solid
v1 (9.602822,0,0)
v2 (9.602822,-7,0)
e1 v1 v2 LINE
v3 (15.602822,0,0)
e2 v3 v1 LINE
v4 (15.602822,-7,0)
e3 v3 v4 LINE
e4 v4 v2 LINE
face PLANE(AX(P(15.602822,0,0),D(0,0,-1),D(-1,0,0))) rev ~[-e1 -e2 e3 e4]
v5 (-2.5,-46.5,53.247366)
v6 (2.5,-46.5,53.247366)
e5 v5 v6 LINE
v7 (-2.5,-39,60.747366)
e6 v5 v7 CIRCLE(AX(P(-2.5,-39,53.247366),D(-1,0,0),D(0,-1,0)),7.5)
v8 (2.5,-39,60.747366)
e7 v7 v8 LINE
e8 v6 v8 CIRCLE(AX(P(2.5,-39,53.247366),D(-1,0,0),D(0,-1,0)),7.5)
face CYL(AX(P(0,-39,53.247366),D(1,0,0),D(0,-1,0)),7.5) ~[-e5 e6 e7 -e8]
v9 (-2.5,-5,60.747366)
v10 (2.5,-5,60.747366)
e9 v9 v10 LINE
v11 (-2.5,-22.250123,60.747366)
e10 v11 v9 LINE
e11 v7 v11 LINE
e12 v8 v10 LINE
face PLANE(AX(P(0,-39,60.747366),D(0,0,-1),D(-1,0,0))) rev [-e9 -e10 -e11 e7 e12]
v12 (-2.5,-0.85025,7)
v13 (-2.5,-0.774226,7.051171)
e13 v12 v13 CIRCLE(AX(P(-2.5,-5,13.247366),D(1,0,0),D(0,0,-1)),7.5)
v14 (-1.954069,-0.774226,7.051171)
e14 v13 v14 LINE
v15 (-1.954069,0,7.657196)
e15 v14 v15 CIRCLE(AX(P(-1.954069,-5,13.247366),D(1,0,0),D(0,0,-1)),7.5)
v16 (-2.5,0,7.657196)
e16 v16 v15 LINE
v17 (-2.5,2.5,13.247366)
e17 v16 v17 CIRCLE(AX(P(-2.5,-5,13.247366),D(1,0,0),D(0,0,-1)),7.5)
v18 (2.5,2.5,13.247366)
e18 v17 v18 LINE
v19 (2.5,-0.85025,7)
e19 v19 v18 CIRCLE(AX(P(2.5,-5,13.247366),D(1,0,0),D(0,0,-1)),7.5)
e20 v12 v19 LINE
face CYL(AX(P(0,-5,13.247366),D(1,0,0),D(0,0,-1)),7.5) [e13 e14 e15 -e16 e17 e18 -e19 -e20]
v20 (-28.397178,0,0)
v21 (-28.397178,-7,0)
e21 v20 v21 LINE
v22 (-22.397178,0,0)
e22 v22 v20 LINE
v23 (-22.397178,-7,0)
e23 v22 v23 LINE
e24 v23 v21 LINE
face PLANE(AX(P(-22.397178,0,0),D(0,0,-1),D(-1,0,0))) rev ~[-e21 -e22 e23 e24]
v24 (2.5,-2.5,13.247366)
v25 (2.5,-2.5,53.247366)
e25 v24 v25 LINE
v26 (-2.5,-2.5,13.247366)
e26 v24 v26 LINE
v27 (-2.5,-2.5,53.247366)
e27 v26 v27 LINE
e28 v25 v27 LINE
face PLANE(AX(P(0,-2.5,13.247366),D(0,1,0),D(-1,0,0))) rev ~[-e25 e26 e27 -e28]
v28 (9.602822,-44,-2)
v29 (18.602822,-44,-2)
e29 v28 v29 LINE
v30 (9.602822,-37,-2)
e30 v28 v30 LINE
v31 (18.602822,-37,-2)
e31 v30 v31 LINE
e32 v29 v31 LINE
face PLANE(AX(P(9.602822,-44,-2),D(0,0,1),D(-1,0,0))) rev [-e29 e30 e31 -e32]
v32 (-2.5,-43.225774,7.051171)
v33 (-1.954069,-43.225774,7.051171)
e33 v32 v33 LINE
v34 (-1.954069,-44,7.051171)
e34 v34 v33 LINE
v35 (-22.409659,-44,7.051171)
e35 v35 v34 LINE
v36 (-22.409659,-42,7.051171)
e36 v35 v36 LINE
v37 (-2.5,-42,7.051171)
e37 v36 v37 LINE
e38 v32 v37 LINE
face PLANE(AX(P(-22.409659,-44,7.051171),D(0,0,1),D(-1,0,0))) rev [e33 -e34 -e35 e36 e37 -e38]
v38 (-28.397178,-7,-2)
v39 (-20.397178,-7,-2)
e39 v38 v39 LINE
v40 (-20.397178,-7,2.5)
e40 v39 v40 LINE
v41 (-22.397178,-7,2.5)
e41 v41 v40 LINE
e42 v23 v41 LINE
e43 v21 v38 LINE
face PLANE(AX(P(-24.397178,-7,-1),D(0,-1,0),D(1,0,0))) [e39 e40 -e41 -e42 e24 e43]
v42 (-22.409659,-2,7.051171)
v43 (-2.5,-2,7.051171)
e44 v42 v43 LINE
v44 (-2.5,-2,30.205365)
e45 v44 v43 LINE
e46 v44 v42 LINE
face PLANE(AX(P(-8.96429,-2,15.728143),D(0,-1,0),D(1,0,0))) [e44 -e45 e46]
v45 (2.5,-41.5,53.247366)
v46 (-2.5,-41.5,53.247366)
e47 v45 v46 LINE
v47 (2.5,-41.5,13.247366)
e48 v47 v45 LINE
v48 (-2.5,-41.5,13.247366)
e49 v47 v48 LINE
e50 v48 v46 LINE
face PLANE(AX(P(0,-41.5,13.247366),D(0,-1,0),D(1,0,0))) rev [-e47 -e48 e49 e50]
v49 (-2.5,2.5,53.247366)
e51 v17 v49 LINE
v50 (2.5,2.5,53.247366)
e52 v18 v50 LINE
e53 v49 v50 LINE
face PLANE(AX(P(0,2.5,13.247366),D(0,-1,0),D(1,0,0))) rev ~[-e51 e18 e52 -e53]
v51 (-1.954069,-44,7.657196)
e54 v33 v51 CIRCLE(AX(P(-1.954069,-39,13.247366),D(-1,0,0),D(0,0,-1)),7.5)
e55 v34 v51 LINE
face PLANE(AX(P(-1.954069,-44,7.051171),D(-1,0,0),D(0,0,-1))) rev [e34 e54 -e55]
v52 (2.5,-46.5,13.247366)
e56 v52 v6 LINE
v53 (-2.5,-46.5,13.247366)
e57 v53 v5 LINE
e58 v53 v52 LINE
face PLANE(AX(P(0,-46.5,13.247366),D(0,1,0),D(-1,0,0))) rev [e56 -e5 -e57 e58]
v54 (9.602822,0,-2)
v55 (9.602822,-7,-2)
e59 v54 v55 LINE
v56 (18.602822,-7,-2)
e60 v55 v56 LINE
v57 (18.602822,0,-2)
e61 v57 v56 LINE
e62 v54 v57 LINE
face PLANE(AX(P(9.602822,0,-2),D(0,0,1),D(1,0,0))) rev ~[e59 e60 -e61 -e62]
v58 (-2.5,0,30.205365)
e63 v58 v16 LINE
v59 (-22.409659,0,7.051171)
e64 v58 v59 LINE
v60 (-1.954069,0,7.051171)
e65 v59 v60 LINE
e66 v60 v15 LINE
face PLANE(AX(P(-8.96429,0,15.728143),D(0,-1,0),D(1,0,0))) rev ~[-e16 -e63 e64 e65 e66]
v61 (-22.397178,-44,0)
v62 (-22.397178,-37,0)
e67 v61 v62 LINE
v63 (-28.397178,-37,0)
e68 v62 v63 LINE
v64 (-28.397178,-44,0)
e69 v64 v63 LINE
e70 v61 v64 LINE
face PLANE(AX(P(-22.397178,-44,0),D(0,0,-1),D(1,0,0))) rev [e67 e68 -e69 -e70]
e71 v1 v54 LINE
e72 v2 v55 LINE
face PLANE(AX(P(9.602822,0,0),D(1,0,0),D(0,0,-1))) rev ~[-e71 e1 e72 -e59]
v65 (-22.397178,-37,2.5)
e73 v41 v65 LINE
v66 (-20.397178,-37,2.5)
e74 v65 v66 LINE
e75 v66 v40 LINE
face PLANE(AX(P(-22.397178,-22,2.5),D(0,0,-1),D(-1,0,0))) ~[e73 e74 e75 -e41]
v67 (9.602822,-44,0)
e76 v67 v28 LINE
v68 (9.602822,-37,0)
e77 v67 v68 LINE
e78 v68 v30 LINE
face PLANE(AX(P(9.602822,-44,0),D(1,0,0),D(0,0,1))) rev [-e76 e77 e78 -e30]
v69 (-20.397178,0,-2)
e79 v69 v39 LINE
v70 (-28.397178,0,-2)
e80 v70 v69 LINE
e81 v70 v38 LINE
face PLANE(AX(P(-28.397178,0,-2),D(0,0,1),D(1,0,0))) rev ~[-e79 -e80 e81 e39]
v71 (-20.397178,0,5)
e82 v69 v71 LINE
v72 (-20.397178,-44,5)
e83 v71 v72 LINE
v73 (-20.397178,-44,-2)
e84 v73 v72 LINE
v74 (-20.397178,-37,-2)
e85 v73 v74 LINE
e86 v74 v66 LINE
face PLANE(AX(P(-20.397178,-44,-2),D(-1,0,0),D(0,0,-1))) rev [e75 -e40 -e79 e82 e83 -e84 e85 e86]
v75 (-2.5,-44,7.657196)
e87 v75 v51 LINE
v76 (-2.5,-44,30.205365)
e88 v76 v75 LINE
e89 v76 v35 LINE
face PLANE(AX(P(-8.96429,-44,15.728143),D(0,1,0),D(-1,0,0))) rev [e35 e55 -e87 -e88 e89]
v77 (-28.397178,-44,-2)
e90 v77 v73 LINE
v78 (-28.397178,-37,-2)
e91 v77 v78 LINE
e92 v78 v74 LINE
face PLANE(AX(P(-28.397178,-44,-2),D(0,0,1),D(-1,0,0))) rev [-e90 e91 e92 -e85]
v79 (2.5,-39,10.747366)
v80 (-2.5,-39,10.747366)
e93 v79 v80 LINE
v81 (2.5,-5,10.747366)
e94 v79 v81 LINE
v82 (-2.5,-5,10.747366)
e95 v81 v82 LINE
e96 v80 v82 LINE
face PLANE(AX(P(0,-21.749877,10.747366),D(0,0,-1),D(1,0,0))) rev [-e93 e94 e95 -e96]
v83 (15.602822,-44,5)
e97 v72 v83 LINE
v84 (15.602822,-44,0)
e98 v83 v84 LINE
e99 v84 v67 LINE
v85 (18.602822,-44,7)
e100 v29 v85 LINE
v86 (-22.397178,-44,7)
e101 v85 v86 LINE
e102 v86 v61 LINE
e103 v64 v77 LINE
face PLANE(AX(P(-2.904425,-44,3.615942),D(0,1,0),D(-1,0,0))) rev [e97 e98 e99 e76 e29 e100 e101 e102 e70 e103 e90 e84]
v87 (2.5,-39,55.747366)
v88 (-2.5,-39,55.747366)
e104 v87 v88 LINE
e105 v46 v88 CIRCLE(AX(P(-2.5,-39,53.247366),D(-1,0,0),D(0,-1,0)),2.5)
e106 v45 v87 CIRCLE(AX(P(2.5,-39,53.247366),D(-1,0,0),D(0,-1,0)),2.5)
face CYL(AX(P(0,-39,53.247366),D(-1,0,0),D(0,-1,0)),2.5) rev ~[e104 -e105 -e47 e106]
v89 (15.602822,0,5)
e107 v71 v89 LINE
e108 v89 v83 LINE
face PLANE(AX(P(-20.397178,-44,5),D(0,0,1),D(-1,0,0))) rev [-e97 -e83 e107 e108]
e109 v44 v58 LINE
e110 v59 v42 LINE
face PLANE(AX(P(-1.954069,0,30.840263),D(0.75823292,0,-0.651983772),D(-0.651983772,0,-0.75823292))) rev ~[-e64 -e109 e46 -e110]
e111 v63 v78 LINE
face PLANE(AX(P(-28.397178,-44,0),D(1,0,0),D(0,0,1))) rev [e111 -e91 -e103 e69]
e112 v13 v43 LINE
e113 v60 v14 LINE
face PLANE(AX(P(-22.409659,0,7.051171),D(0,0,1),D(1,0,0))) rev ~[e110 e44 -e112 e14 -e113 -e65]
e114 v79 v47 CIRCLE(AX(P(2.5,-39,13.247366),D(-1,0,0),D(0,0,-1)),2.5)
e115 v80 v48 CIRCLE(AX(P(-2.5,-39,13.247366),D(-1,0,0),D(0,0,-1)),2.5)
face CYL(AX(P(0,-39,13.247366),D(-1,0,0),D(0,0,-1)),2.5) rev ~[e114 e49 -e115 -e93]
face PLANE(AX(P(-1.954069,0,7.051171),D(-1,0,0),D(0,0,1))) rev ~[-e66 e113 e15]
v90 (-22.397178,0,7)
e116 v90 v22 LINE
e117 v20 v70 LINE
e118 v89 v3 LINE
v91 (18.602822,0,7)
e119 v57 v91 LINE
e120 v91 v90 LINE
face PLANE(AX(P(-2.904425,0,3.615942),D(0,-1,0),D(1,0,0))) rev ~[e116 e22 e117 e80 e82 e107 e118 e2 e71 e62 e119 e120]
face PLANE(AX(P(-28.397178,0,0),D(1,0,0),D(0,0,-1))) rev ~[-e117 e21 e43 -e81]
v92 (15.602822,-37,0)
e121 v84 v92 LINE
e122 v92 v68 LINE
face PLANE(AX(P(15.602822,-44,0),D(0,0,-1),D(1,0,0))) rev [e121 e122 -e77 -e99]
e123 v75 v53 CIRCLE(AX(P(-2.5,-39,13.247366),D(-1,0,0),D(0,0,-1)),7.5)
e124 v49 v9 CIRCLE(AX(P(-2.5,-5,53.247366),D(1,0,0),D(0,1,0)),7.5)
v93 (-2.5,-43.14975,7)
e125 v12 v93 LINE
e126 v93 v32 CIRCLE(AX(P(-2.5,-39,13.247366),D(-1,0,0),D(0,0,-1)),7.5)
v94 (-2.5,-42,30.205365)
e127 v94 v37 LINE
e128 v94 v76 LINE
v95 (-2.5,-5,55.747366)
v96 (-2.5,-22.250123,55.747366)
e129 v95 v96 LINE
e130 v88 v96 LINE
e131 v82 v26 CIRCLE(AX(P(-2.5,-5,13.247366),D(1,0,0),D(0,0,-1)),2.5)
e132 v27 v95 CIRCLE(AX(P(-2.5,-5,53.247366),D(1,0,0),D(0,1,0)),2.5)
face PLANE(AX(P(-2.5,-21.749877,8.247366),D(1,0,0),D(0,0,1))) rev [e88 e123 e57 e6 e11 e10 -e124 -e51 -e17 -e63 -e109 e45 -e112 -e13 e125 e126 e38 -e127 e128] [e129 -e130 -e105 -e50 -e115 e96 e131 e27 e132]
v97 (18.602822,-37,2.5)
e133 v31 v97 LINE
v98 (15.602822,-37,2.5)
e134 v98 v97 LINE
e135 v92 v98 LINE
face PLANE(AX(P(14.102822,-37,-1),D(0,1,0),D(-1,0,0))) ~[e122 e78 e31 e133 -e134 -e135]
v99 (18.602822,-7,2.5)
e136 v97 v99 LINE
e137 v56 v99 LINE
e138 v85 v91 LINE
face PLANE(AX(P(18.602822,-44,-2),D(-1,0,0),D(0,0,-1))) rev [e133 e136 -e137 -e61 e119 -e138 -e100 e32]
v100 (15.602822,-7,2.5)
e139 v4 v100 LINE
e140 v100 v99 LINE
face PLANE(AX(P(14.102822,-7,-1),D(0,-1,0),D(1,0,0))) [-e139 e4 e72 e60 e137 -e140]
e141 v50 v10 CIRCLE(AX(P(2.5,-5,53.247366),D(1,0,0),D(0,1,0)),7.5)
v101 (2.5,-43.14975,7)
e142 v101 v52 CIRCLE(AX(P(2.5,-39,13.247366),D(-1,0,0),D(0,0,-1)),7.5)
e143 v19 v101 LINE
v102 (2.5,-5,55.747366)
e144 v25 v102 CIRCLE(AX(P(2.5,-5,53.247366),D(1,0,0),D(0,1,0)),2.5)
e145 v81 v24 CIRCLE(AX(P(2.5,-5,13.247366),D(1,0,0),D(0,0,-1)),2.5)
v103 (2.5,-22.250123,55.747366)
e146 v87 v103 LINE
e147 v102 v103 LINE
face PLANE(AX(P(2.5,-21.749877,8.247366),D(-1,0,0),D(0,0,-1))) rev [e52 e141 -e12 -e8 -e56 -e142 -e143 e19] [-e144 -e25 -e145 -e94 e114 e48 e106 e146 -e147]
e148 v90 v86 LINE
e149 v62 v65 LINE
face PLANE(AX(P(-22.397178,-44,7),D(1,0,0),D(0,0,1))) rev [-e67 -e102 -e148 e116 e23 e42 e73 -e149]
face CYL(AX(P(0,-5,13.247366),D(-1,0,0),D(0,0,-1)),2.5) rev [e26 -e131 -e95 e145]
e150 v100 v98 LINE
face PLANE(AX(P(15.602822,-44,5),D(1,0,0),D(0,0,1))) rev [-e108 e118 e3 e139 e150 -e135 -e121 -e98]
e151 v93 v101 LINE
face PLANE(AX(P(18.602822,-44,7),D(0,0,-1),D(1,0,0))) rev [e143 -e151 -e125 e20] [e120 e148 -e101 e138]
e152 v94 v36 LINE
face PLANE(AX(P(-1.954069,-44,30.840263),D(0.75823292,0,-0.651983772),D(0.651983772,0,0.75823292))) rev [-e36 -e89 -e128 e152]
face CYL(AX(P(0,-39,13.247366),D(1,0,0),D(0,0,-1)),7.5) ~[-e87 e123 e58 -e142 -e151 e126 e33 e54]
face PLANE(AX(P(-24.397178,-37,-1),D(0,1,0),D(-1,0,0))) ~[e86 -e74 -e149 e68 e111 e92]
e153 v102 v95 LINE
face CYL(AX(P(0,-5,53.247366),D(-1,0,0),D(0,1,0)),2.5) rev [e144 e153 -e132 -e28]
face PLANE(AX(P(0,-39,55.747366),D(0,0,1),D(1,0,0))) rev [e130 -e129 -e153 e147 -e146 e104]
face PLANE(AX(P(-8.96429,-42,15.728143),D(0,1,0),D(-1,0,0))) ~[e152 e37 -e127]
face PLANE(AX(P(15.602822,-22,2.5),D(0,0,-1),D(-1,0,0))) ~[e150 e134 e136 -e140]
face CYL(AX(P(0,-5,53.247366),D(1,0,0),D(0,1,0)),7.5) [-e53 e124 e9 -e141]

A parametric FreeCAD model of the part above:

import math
import FreeCAD as App
import Part
import Sketcher
from FreeCAD import Vector
Q = App.Units.Quantity


def add_polygon(sketch, points):
    """Adds a closed chain of lines whose ends are joined by coincident constraints."""
    first, n = sketch.GeometryCount, len(points)
    for a, b in zip(points, points[1:] + points[:1]):
        sketch.addGeometry(Part.LineSegment(App.Vector(*a, 0), App.Vector(*b, 0)), False)
    for i in range(n):
        sketch.addConstraint(Sketcher.Constraint("Coincident", first + i, 2, first + (i + 1) % n, 1))

doc = App.newDocument("Part")
body = doc.addObject("PartDesign::Body", "Body")

# Sketch on XZ plane
sketch1 = body.newObject("Sketcher::SketchObject", "Sketch")
sketch1.AttachmentSupport = (doc.getObject("XZ_Plane"), [""])
sketch1.MapMode = "FlatFace"
add_polygon(sketch1, [(-22.4, 0), (-28.4, 0), (-28.4, -2), (-20.4, -2), (-20.4, 5), (15.6, 5), (15.6, 0), (9.6, 0), (9.6, -2), (18.6, -2), (18.6, 7), (-22.4, 7)])  # lines 0-11
sketch1.addConstraint([
    Sketcher.Constraint("Horizontal", 0),
    Sketcher.Constraint("Vertical", 1),
    Sketcher.Constraint("Horizontal", 2),
    Sketcher.Constraint("Vertical", 3),
    Sketcher.Constraint("Horizontal", 4),
    Sketcher.Constraint("Vertical", 5),
    Sketcher.Constraint("Horizontal", 6),
    Sketcher.Constraint("Vertical", 7),
    Sketcher.Constraint("Horizontal", 8),
    Sketcher.Constraint("Vertical", 9),
    Sketcher.Constraint("Horizontal", 10),
    Sketcher.Constraint("Vertical", 11),
    Sketcher.Constraint("PointOnObject", 0, 2, -1),
    Sketcher.Constraint("PointOnObject", 5, 2, -1),
    Sketcher.Constraint("Horizontal", 2, 2, 7, 2),
    Sketcher.Constraint("Equal", 0, 6),
    Sketcher.Constraint("Equal", 8, 9),
    Sketcher.Constraint("Equal", 3, 11),
    Sketcher.Constraint("DistanceX", 0, 2, 0, 1, Q("6 mm")),
    Sketcher.Constraint("DistanceX", 2, 1, 2, 2, Q("8 mm")),
    Sketcher.Constraint("DistanceX", 4, 1, 4, 2, Q("36 mm")),
    Sketcher.Constraint("DistanceX", 8, 1, 8, 2, Q("9 mm")),
    Sketcher.Constraint("DistanceY", 1, 2, 1, 1, Q("2 mm")),
    Sketcher.Constraint("DistanceX", 0, 2, -1, 1, Q("28.397178 mm")),
])
pad1 = body.newObject("PartDesign::Pad", "Pad")
pad1.Profile = sketch1
pad1.Length = 22

# Sketch on XZ plane
sketch2 = body.newObject("Sketcher::SketchObject", "Sketch001")
sketch2.AttachmentSupport = (doc.getObject("XZ_Plane"), [""])
sketch2.MapMode = "FlatFace"
sketch2.AttachmentOffset = App.Placement(Vector(0, 0, 22), App.Rotation())
add_polygon(sketch2, [(-22.4, 0), (-28.4, 0), (-28.4, -2), (-20.4, -2), (-20.4, 2.5), (-22.4, 2.5)])  # lines 0-5
add_polygon(sketch2, [(18.6, -2), (18.6, 2.5), (15.6, 2.5), (15.6, 0), (9.6, 0), (9.6, -2)])  # lines 6-11
sketch2.addConstraint([
    Sketcher.Constraint("Horizontal", 0),
    Sketcher.Constraint("Vertical", 1),
    Sketcher.Constraint("Horizontal", 2),
    Sketcher.Constraint("Vertical", 3),
    Sketcher.Constraint("Horizontal", 4),
    Sketcher.Constraint("Vertical", 5),
    Sketcher.Constraint("Vertical", 6),
    Sketcher.Constraint("Horizontal", 7),
    Sketcher.Constraint("Vertical", 8),
    Sketcher.Constraint("Horizontal", 9),
    Sketcher.Constraint("Vertical", 10),
    Sketcher.Constraint("Horizontal", 11),
    Sketcher.Constraint("PointOnObject", 0, 2, -1),
    Sketcher.Constraint("PointOnObject", 8, 2, -1),
    Sketcher.Constraint("Horizontal", 4, 2, 6, 2),
    Sketcher.Constraint("Horizontal", 2, 2, 10, 2),
    Sketcher.Constraint("Equal", 0, 9),
    Sketcher.Constraint("Equal", 4, 1),
    Sketcher.Constraint("DistanceX", 0, 2, 0, 1, Q("6 mm")),
    Sketcher.Constraint("DistanceX", 2, 1, 2, 2, Q("8 mm")),
    Sketcher.Constraint("DistanceX", 7, 2, 7, 1, Q("3 mm")),
    Sketcher.Constraint("DistanceY", 3, 1, 3, 2, Q("4.5 mm")),
    Sketcher.Constraint("DistanceX", 3, 2, 6, 2, Q("39 mm")),
    Sketcher.Constraint("DistanceX", 0, 2, -1, 1, Q("28.397178 mm")),
])
pocket1 = body.newObject("PartDesign::Pocket", "Pocket")
pocket1.Profile = sketch2
pocket1.Length = 15

# Sketch on XZ plane
sketch3 = body.newObject("Sketcher::SketchObject", "Sketch002")
sketch3.AttachmentSupport = (doc.getObject("XZ_Plane"), [""])
sketch3.MapMode = "FlatFace"
sketch3.AttachmentOffset = App.Placement(Vector(0, 0, 22), App.Rotation())
add_polygon(sketch3, [(-2, 11), (-2, 6), (2, 6), (2, 11)])  # lines 0-3
sketch3.addConstraint([
    Sketcher.Constraint("Vertical", 0),
    Sketcher.Constraint("Horizontal", 1),
    Sketcher.Constraint("Vertical", 2),
    Sketcher.Constraint("Horizontal", 3),
    Sketcher.Constraint("Equal", 3, 0),
    Sketcher.Constraint("DistanceX", 1, 1, 1, 2, Q("5 mm")),
    Sketcher.Constraint("DistanceX", 0, 2, -1, 1, Q("2.5 mm")),
    Sketcher.Constraint("DistanceY", -1, 1, 0, 2, Q("5.747366 mm")),
])

# Sketch on YZ plane
sketch4 = body.newObject("Sketcher::SketchObject", "Sketch003")
sketch4.AttachmentSupport = (doc.getObject("YZ_Plane"), [""])
sketch4.MapMode = "FlatFace"
sketch4.addGeometry([
    Part.LineSegment(Vector(-22, 8, 0), Vector(-5, 8, 0)),  # 0
    Part.ArcOfCircle(Part.Circle(Vector(-5, 13, 0), Vector(0, 0, 1), 5), math.radians(-90), math.radians(0)),  # 1
    Part.LineSegment(Vector(0, 13, 0), Vector(0, 53, 0)),  # 2
    Part.ArcOfCircle(Part.Circle(Vector(-5, 53, 0), Vector(0, 0, 1), 5), math.radians(0), math.radians(90)),  # 3
    Part.LineSegment(Vector(-5, 58, 0), Vector(-22, 58, 0)),  # 4
], False)
sketch4.addConstraint([
    Sketcher.Constraint("Tangent", 0, 2, 1, 1),
    Sketcher.Constraint("Tangent", 1, 2, 2, 1),
    Sketcher.Constraint("Tangent", 2, 2, 3, 1),
    Sketcher.Constraint("Tangent", 3, 2, 4, 1),
    Sketcher.Constraint("Horizontal", 0),
    Sketcher.Constraint("Vertical", 2),
    Sketcher.Constraint("Horizontal", 4),
    Sketcher.Constraint("Equal", 1, 3),
    Sketcher.Constraint("PointOnObject", 1, 2, -2),
    Sketcher.Constraint("Vertical", 0, 1, 4, 2),
    Sketcher.Constraint("Radius", 1, Q("5 mm")),
    Sketcher.Constraint("DistanceY", 2, 1, 2, 2, Q("40 mm")),
    Sketcher.Constraint("DistanceX", 0, 1, 0, 2, Q("17.250123 mm")),
    Sketcher.Constraint("DistanceY", -1, 1, 1, 3, Q("13.247366 mm")),
])
doc.recompute()

additivepipe = body.newObject("PartDesign::AdditivePipe", "AdditivePipe")
additivepipe.Profile = sketch3
additivepipe.Spine = (sketch4, ["Edge1", "Edge2", "Edge3", "Edge4", "Edge5"])

# Sketch on XZ plane
sketch5 = body.newObject("Sketcher::SketchObject", "Sketch004")
sketch5.AttachmentSupport = (doc.getObject("XZ_Plane"), [""])
sketch5.MapMode = "FlatFace"
add_polygon(sketch5, [(-2, 31), (-22, 7), (-2, 7)])  # lines 0-2
sketch5.addConstraint([
    Sketcher.Constraint("Horizontal", 1),
    Sketcher.Constraint("Vertical", 2),
    Sketcher.Constraint("DistanceX", 1, 1, 1, 2, Q("20.45559 mm")),
    Sketcher.Constraint("DistanceY", 2, 1, 2, 2, Q("23.789092 mm")),
    Sketcher.Constraint("DistanceX", 0, 2, -1, 1, Q("22.409659 mm")),
    Sketcher.Constraint("DistanceY", -1, 1, 0, 2, Q("7.051171 mm")),
])
pad2 = body.newObject("PartDesign::Pad", "Pad001")
pad2.Profile = sketch5
pad2.Length = 2
body2 = doc.addObject("PartDesign::Body", "Body001")
doc.recompute()

body2.BaseFeature = body
doc.recompute()

mirroring = doc.addObject("Part::Mirroring", "Mirroring")
mirroring.Source = body
mirroring.Base = Vector(0, -22, 0)
mirroring.Normal = Vector(0, -1, 0)
body3 = doc.addObject("PartDesign::Body", "Body002")
body3.BaseFeature = mirroring
boolean = body2.newObject("PartDesign::Boolean", "Boolean")
boolean.Type = "Fuse"
boolean.addObjects([body3])
doc.recompute()
mirroring.Visibility = False

doc.recompute()
